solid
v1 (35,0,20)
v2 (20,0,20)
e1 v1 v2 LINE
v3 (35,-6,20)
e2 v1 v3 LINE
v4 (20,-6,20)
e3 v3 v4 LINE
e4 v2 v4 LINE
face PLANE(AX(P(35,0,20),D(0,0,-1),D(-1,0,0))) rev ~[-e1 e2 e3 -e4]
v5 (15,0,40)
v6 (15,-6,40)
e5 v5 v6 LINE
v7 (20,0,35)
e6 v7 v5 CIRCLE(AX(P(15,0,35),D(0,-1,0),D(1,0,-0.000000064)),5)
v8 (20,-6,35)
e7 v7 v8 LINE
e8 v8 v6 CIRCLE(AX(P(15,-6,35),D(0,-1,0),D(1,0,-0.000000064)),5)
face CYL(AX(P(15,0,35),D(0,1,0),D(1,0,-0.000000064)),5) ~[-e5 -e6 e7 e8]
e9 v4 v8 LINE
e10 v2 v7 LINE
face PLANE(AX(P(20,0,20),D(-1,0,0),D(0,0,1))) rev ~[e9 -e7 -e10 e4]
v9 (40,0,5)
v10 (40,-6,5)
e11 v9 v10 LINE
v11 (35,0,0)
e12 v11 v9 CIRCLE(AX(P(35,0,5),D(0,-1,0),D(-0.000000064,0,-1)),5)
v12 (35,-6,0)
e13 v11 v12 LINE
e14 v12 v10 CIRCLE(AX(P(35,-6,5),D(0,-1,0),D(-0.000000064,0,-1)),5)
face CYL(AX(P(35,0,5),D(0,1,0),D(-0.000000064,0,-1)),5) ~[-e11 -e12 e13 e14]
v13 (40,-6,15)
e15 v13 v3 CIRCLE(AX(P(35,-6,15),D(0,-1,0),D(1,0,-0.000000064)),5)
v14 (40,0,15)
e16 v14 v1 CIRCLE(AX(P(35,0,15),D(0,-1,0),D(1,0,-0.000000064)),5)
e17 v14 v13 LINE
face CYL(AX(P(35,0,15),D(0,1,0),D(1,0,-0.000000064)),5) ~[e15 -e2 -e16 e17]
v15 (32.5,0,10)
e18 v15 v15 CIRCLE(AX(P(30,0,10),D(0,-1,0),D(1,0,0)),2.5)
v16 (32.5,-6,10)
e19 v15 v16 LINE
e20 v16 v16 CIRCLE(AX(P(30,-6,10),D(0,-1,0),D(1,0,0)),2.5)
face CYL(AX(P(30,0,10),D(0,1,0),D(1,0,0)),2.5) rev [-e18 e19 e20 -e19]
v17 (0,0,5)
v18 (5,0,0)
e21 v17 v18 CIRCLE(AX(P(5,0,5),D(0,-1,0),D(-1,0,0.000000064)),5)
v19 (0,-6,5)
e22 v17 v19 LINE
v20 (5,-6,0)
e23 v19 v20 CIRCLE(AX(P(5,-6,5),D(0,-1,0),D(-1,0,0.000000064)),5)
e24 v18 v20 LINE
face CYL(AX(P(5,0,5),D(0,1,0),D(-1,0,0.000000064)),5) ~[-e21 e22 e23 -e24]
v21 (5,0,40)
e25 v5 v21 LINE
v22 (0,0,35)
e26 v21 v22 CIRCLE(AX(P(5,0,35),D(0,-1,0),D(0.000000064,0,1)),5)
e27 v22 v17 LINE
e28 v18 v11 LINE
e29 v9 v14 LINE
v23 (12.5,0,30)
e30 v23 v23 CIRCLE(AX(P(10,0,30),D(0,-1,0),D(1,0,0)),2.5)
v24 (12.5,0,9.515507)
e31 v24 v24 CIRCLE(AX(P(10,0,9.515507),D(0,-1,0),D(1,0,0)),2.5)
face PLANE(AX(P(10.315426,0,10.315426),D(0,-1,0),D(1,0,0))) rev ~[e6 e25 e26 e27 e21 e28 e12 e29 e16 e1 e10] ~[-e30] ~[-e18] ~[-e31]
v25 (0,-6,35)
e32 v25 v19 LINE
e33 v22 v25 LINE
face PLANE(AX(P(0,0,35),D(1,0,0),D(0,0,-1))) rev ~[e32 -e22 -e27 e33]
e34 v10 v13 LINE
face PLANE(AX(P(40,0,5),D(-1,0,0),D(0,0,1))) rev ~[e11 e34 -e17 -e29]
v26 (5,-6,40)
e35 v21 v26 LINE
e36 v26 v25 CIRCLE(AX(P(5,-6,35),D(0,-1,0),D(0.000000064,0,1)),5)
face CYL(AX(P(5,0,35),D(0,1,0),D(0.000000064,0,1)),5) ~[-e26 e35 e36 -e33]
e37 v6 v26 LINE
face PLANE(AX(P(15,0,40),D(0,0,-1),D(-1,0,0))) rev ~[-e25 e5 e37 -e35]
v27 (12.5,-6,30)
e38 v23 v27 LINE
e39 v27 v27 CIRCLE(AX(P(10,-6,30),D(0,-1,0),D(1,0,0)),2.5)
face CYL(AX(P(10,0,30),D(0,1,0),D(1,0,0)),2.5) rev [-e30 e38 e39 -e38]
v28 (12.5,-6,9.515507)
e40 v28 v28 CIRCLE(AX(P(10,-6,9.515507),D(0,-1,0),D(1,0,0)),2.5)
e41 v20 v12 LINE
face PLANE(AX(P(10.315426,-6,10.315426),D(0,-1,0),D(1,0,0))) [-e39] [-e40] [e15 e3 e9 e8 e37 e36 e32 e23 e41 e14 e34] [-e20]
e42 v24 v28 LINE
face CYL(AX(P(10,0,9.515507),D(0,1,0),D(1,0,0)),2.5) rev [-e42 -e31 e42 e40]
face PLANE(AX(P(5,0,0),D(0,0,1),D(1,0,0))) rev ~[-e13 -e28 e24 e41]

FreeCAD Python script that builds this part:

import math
import FreeCAD as App
import Part
import Sketcher
from FreeCAD import Vector
Q = App.Units.Quantity

doc = App.newDocument("Part")
body = doc.addObject("PartDesign::Body", "Body")

# Sketch on XZ plane
sketch1 = doc.addObject("Sketcher::SketchObject", "Sketch")
body.addObject(sketch1)
sketch1.AttachmentSupport = (doc.XZ_Plane, [""])
sketch1.MapMode = "FlatFace"
sketch1.addGeometry([
    Part.ArcOfCircle(Part.Circle(Vector(5, 5, 0), Vector(0, 0, 1), 5), math.radians(180), math.radians(270)),  # 0
    Part.LineSegment(Vector(5, 0, 0), Vector(35, 0, 0)),  # 1
    Part.ArcOfCircle(Part.Circle(Vector(35, 5, 0), Vector(0, 0, 1), 5), math.radians(-90), math.radians(0)),  # 2
    Part.LineSegment(Vector(40, 5, 0), Vector(40, 15, 0)),  # 3
    Part.ArcOfCircle(Part.Circle(Vector(35, 15, 0), Vector(0, 0, 1), 5), math.radians(0), math.radians(90)),  # 4
    Part.LineSegment(Vector(35, 20, 0), Vector(20, 20, 0)),  # 5
    Part.LineSegment(Vector(20, 20, 0), Vector(20, 35, 0)),  # 6
    Part.ArcOfCircle(Part.Circle(Vector(15, 35, 0), Vector(0, 0, 1), 5), math.radians(0), math.radians(90)),  # 7
    Part.LineSegment(Vector(15, 40, 0), Vector(5, 40, 0)),  # 8
    Part.ArcOfCircle(Part.Circle(Vector(5, 35, 0), Vector(0, 0, 1), 5), math.radians(90), math.radians(180)),  # 9
    Part.LineSegment(Vector(0, 35, 0), Vector(0, 5, 0)),  # 10
    Part.Circle(Vector(10, 9.5, 0), Vector(0, 0, 1), 2.5),  # 11
    Part.Circle(Vector(30, 10, 0), Vector(0, 0, 1), 2.5),  # 12
    Part.Circle(Vector(10, 30, 0), Vector(0, 0, 1), 2.5),  # 13
], False)
sketch1.addConstraint([
    Sketcher.Constraint("Tangent", 0, 2, 1, 1),
    Sketcher.Constraint("Tangent", 1, 2, 2, 1),
    Sketcher.Constraint("Tangent", 2, 2, 3, 1),
    Sketcher.Constraint("Tangent", 3, 2, 4, 1),
    Sketcher.Constraint("Tangent", 4, 2, 5, 1),
    Sketcher.Constraint("Coincident", 5, 2, 6, 1),
    Sketcher.Constraint("Tangent", 6, 2, 7, 1),
    Sketcher.Constraint("Tangent", 7, 2, 8, 1),
    Sketcher.Constraint("Tangent", 8, 2, 9, 1),
    Sketcher.Constraint("Tangent", 9, 2, 10, 1),
    Sketcher.Constraint("Tangent", 10, 2, 0, 1),
    Sketcher.Constraint("Horizontal", 1),
    Sketcher.Constraint("Vertical", 3),
    Sketcher.Constraint("Horizontal", 5),
    Sketcher.Constraint("Vertical", 6),
    Sketcher.Constraint("Horizontal", 8),
    Sketcher.Constraint("Vertical", 10),
    Sketcher.Constraint("Equal", 0, 2),
    Sketcher.Constraint("Equal", 2, 4),
    Sketcher.Constraint("Equal", 4, 7),
    Sketcher.Constraint("Equal", 7, 9),
    Sketcher.Constraint("Equal", 11, 12),
    Sketcher.Constraint("Equal", 12, 13),
    Sketcher.Constraint("PointOnObject", 0, 2, -1),
    Sketcher.Constraint("PointOnObject", 9, 2, -2),
    Sketcher.Constraint("Vertical", 11, 3, 13, 3),
    Sketcher.Constraint("Equal", 8, 3),
    Sketcher.Constraint("Equal", 5, 6),
    Sketcher.Constraint("Diameter", 11, Q("5 mm")),
    Sketcher.Constraint("Radius", 0, Q("5 mm")),
    Sketcher.Constraint("DistanceX", 1, 1, 1, 2, Q("30 mm")),
    Sketcher.Constraint("DistanceX", 5, 2, 5, 1, Q("15 mm")),
    Sketcher.Constraint("DistanceX", -1, 1, 11, 3, Q("10 mm")),
    Sketcher.Constraint("DistanceX", -1, 1, 12, 3, Q("30 mm")),
    Sketcher.Constraint("DistanceY", -1, 1, 12, 3, Q("10 mm")),
    Sketcher.Constraint("DistanceY", -1, 1, 13, 3, Q("30 mm")),
    Sketcher.Constraint("DistanceY", -1, 1, 11, 3, Q("9.515507 mm")),
])
pad1 = doc.addObject("PartDesign::Pad", "Pad")
body.addObject(pad1)
pad1.Profile = sketch1
pad1.Length = 6

doc.recompute()
